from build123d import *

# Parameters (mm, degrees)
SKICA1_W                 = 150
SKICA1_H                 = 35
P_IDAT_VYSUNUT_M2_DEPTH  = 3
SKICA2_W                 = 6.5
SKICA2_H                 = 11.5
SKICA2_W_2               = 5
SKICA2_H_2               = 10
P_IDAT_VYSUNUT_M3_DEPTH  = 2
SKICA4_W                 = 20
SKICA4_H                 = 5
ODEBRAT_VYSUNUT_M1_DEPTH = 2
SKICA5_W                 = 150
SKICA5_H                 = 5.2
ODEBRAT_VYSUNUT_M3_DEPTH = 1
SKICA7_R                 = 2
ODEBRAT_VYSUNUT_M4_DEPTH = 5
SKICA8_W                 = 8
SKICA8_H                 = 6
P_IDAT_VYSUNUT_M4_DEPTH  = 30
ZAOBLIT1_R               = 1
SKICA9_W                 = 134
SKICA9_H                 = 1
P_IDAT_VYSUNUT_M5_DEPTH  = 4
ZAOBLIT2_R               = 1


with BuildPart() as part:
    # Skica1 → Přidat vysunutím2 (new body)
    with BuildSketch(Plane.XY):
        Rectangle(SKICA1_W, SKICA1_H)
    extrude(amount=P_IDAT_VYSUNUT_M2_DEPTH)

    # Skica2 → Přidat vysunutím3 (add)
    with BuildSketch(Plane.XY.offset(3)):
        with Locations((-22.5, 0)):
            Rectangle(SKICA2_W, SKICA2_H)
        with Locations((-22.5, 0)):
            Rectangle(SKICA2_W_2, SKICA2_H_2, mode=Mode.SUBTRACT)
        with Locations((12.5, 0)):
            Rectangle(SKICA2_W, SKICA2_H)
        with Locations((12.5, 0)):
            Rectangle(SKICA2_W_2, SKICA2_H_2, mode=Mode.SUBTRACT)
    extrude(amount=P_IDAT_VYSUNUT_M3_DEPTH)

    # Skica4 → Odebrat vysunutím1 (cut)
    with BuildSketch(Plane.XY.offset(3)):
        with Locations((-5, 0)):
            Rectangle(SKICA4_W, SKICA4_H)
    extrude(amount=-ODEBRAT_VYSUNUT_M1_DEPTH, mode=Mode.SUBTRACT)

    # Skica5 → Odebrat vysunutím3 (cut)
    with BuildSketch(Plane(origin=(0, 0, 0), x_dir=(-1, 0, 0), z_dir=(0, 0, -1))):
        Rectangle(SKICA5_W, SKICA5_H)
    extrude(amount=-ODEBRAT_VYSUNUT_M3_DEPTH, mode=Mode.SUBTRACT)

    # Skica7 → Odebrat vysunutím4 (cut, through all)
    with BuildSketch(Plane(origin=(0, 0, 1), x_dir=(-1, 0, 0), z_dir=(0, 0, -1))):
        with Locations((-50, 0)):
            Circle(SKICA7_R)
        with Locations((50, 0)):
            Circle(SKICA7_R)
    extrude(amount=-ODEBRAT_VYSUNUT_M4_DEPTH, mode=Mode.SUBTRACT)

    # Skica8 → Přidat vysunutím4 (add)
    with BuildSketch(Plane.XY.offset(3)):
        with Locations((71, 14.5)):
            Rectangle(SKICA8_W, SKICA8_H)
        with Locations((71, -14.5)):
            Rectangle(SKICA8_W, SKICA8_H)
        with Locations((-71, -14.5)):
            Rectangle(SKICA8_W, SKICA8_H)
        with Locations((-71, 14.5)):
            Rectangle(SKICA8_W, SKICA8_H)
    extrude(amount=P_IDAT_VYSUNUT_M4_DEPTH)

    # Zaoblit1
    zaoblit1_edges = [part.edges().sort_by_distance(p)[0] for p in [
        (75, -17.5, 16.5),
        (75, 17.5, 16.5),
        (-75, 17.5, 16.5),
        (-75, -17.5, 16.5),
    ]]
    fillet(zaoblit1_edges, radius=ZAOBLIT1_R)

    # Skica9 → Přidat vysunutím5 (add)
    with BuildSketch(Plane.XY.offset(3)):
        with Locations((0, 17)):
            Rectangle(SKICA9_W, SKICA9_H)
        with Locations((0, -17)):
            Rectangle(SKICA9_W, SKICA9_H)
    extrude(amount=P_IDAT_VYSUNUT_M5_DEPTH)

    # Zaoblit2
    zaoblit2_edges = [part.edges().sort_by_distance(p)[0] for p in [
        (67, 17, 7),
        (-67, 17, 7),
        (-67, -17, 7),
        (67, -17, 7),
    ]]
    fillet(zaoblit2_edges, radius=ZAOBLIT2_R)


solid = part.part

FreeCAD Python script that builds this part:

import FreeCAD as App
import Part
import Sketcher

V = App.Vector
Q = App.Units.Quantity


def edges_at(feature, points):
    """Names of the edges that pass closest to the given points."""
    edges = feature.Shape.Edges
    near = lambda p: min(range(len(edges)), key=lambda i: edges[i].distToShape(Part.Vertex(*p))[0])
    return sorted({f"Edge{near(p) + 1}" for p in points})

doc = App.newDocument("Part")
params = doc.addObject("Spreadsheet::Sheet", "Params")
for row, (alias, value) in enumerate([
    ("sketch1_width", "150 mm"),
    ("sketch1_height", "35 mm"),
    ("pad1_length", "3 mm"),
    ("sketch2_width", "5 mm"),
    ("sketch2_height", "10 mm"),
    ("sketch2_width2", "6.5 mm"),
    ("sketch2_height2", "11.5 mm"),
    ("pad2_length", "2 mm"),
    ("sketch3_width", "20 mm"),
    ("sketch3_height", "5 mm"),
    ("pocket1_length", "2 mm"),
    ("sketch4_width", "150 mm"),
    ("sketch4_height", "5.2 mm"),
    ("pocket2_length", "1 mm"),
    ("sketch5_diameter", "4 mm"),
    ("sketch6_width", "8 mm"),
    ("sketch6_height", "6 mm"),
    ("pad3_length", "30 mm"),
    ("fillet_radius", "1 mm"),
    ("sketch7_width", "134 mm"),
    ("sketch7_height", "1 mm"),
    ("pad4_length", "4 mm"),
    ("fillet2_radius", "1 mm"),
], start=1):
    params.set(f"A{row}", alias)
    params.set(f"B{row}", "=" + value)
    params.setAlias(f"B{row}", alias)

body = doc.addObject("PartDesign::Body", "Body")

# Sketch on XY plane
sketch1 = body.newObject("Sketcher::SketchObject", "Sketch")
sketch1.AttachmentSupport = (doc.getObject("XY_Plane"), [""])
sketch1.MapMode = "FlatFace"
sketch1.addGeometry([
    Part.LineSegment(V(-75, 17.5, 0), V(-75, -17.5, 0)),
    Part.LineSegment(V(-75, -17.5, 0), V(75, -17.5, 0)),
    Part.LineSegment(V(75, -17.5, 0), V(75, 17.5, 0)),
    Part.LineSegment(V(75, 17.5, 0), V(-75, 17.5, 0)),
], False)
sketch1.addConstraint([
    Sketcher.Constraint("Coincident", 0, 2, 1, 1),
    Sketcher.Constraint("Coincident", 1, 2, 2, 1),
    Sketcher.Constraint("Coincident", 2, 2, 3, 1),
    Sketcher.Constraint("Coincident", 3, 2, 0, 1),
    Sketcher.Constraint("Vertical", 0),
    Sketcher.Constraint("Horizontal", 1),
    Sketcher.Constraint("Vertical", 2),
    Sketcher.Constraint("Horizontal", 3),
    Sketcher.Constraint("Symmetric", 0, 2, 2, 2, -1, 1),
    Sketcher.Constraint("DistanceX", 1, 1, 1, 2, Q("150 mm")),
    Sketcher.Constraint("DistanceY", 0, 2, 0, 1, Q("35 mm")),
])
sketch1.setExpression("Constraints[9]", "Params.sketch1_width")
sketch1.setExpression("Constraints[10]", "Params.sketch1_height")
pad1 = body.newObject("PartDesign::Pad", "Pad")
pad1.Profile = sketch1
pad1.setExpression("Length", "Params.pad1_length")

# Sketch on XY plane
sketch2 = body.newObject("Sketcher::SketchObject", "Sketch001")
sketch2.AttachmentSupport = (doc.getObject("XY_Plane"), [""])
sketch2.MapMode = "FlatFace"
sketch2.AttachmentOffset = App.Placement(V(0, 0, 3), App.Rotation())
sketch2.addGeometry([
    Part.LineSegment(V(-25.75, 5.75, 0), V(-25.75, -5.75, 0)),  # 0
    Part.LineSegment(V(-25.75, -5.75, 0), V(-19.25, -5.75, 0)),  # 1
    Part.LineSegment(V(-19.25, -5.75, 0), V(-19.25, 5.75, 0)),  # 2
    Part.LineSegment(V(-19.25, 5.75, 0), V(-25.75, 5.75, 0)),  # 3
    Part.LineSegment(V(-20, -5, 0), V(-25, -5, 0)),  # 4
    Part.LineSegment(V(-25, -5, 0), V(-25, 5, 0)),  # 5
    Part.LineSegment(V(-25, 5, 0), V(-20, 5, 0)),  # 6
    Part.LineSegment(V(-20, 5, 0), V(-20, -5, 0)),  # 7
    Part.LineSegment(V(9.25, 5.75, 0), V(9.25, -5.75, 0)),  # 8
    Part.LineSegment(V(9.25, -5.75, 0), V(15.75, -5.75, 0)),  # 9
    Part.LineSegment(V(15.75, -5.75, 0), V(15.75, 5.75, 0)),  # 10
    Part.LineSegment(V(15.75, 5.75, 0), V(9.25, 5.75, 0)),  # 11
    Part.LineSegment(V(15, -5, 0), V(10, -5, 0)),  # 12
    Part.LineSegment(V(10, -5, 0), V(10, 5, 0)),  # 13
    Part.LineSegment(V(10, 5, 0), V(15, 5, 0)),  # 14
    Part.LineSegment(V(15, 5, 0), V(15, -5, 0)),  # 15
], False)
sketch2.addConstraint([
    Sketcher.Constraint("Coincident", 0, 2, 1, 1),
    Sketcher.Constraint("Coincident", 1, 2, 2, 1),
    Sketcher.Constraint("Coincident", 2, 2, 3, 1),
    Sketcher.Constraint("Coincident", 3, 2, 0, 1),
    Sketcher.Constraint("Coincident", 4, 2, 5, 1),
    Sketcher.Constraint("Coincident", 5, 2, 6, 1),
    Sketcher.Constraint("Coincident", 6, 2, 7, 1),
    Sketcher.Constraint("Coincident", 7, 2, 4, 1),
    Sketcher.Constraint("Coincident", 8, 2, 9, 1),
    Sketcher.Constraint("Coincident", 9, 2, 10, 1),
    Sketcher.Constraint("Coincident", 10, 2, 11, 1),
    Sketcher.Constraint("Coincident", 11, 2, 8, 1),
    Sketcher.Constraint("Coincident", 12, 2, 13, 1),
    Sketcher.Constraint("Coincident", 13, 2, 14, 1),
    Sketcher.Constraint("Coincident", 14, 2, 15, 1),
    Sketcher.Constraint("Coincident", 15, 2, 12, 1),
    Sketcher.Constraint("Vertical", 0),
    Sketcher.Constraint("Horizontal", 1),
    Sketcher.Constraint("Vertical", 2),
    Sketcher.Constraint("Horizontal", 3),
    Sketcher.Constraint("Horizontal", 4),
    Sketcher.Constraint("Vertical", 5),
    Sketcher.Constraint("Horizontal", 6),
    Sketcher.Constraint("Vertical", 7),
    Sketcher.Constraint("Vertical", 8),
    Sketcher.Constraint("Horizontal", 9),
    Sketcher.Constraint("Vertical", 10),
    Sketcher.Constraint("Horizontal", 11),
    Sketcher.Constraint("Horizontal", 12),
    Sketcher.Constraint("Vertical", 13),
    Sketcher.Constraint("Horizontal", 14),
    Sketcher.Constraint("Vertical", 15),
    Sketcher.Constraint("Horizontal", 1, 2, 8, 2),
    Sketcher.Constraint("Horizontal", 3, 2, 10, 2),
    Sketcher.Constraint("Horizontal", 7, 2, 12, 2),
    Sketcher.Constraint("Horizontal", 6, 2, 13, 2),
    Sketcher.Constraint("Equal", 3, 9),
    Sketcher.Constraint("Equal", 6, 12),
    Sketcher.Constraint("DistanceX", 4, 2, 4, 1, Q("5 mm")),
    Sketcher.Constraint("DistanceY", 5, 1, 5, 2, Q("10 mm")),
    Sketcher.Constraint("DistanceX", 1, 1, 1, 2, Q("6.5 mm")),
    Sketcher.Constraint("DistanceY", 0, 2, 0, 1, Q("11.5 mm")),
    Sketcher.Constraint("DistanceX", 4, 2, -1, 1, Q("25 mm")),
    Sketcher.Constraint("DistanceY", 4, 2, -1, 1, Q("5 mm")),
    Sketcher.Constraint("DistanceX", -1, 1, 12, 2, Q("10 mm")),
    Sketcher.Constraint("DistanceX", 1, 2, 9, 2, Q("35 mm")),
    Sketcher.Constraint("DistanceX", 0, 2, -1, 1, Q("25.75 mm")),
    Sketcher.Constraint("DistanceY", 0, 2, -1, 1, Q("5.75 mm")),
])
sketch2.setExpression("Constraints[38]", "Params.sketch2_width")
sketch2.setExpression("Constraints[39]", "Params.sketch2_height")
sketch2.setExpression("Constraints[40]", "Params.sketch2_width2")
sketch2.setExpression("Constraints[41]", "Params.sketch2_height2")
pad2 = body.newObject("PartDesign::Pad", "Pad001")
pad2.Profile = sketch2
pad2.setExpression("Length", "Params.pad2_length")

# Sketch on XY plane
sketch3 = body.newObject("Sketcher::SketchObject", "Sketch002")
sketch3.AttachmentSupport = (doc.getObject("XY_Plane"), [""])
sketch3.MapMode = "FlatFace"
sketch3.AttachmentOffset = App.Placement(V(0, 0, 3), App.Rotation())
sketch3.addGeometry([
    Part.LineSegment(V(-15, 2.5, 0), V(-15, -2.5, 0)),
    Part.LineSegment(V(-15, -2.5, 0), V(5, -2.5, 0)),
    Part.LineSegment(V(5, -2.5, 0), V(5, 2.5, 0)),
    Part.LineSegment(V(5, 2.5, 0), V(-15, 2.5, 0)),
], False)
sketch3.addConstraint([
    Sketcher.Constraint("Coincident", 0, 2, 1, 1),
    Sketcher.Constraint("Coincident", 1, 2, 2, 1),
    Sketcher.Constraint("Coincident", 2, 2, 3, 1),
    Sketcher.Constraint("Coincident", 3, 2, 0, 1),
    Sketcher.Constraint("Vertical", 0),
    Sketcher.Constraint("Horizontal", 1),
    Sketcher.Constraint("Vertical", 2),
    Sketcher.Constraint("Horizontal", 3),
    Sketcher.Constraint("DistanceX", 1, 1, 1, 2, Q("20 mm")),
    Sketcher.Constraint("DistanceY", 0, 2, 0, 1, Q("5 mm")),
    Sketcher.Constraint("DistanceX", 0, 2, -1, 1, Q("15 mm")),
    Sketcher.Constraint("DistanceY", 0, 2, -1, 1, Q("2.5 mm")),
])
sketch3.setExpression("Constraints[8]", "Params.sketch3_width")
sketch3.setExpression("Constraints[9]", "Params.sketch3_height")
pocket1 = body.newObject("PartDesign::Pocket", "Pocket")
pocket1.Profile = sketch3
pocket1.setExpression("Length", "Params.pocket1_length")

# Sketch on XY plane
sketch4 = body.newObject("Sketcher::SketchObject", "Sketch003")
sketch4.AttachmentSupport = (doc.getObject("XY_Plane"), [""])
sketch4.MapMode = "FlatFace"
sketch4.addGeometry([
    Part.LineSegment(V(75, 2.6, 0), V(75, -2.6, 0)),
    Part.LineSegment(V(75, -2.6, 0), V(-75, -2.6, 0)),
    Part.LineSegment(V(-75, -2.6, 0), V(-75, 2.6, 0)),
    Part.LineSegment(V(-75, 2.6, 0), V(75, 2.6, 0)),
], False)
sketch4.addConstraint([
    Sketcher.Constraint("Coincident", 0, 2, 1, 1),
    Sketcher.Constraint("Coincident", 1, 2, 2, 1),
    Sketcher.Constraint("Coincident", 2, 2, 3, 1),
    Sketcher.Constraint("Coincident", 3, 2, 0, 1),
    Sketcher.Constraint("Vertical", 0),
    Sketcher.Constraint("Horizontal", 1),
    Sketcher.Constraint("Vertical", 2),
    Sketcher.Constraint("Horizontal", 3),
    Sketcher.Constraint("Symmetric", 0, 2, 2, 2, -1, 1),
    Sketcher.Constraint("DistanceX", 1, 2, 1, 1, Q("150 mm")),
    Sketcher.Constraint("DistanceY", 0, 2, 0, 1, Q("5.2 mm")),
])
sketch4.setExpression("Constraints[9]", "Params.sketch4_width")
sketch4.setExpression("Constraints[10]", "Params.sketch4_height")
pocket2 = body.newObject("PartDesign::Pocket", "Pocket001")
pocket2.Profile = sketch4
pocket2.setExpression("Length", "Params.pocket2_length")
pocket2.Reversed = True

# Sketch on XY plane
sketch5 = body.newObject("Sketcher::SketchObject", "Sketch004")
sketch5.AttachmentSupport = (doc.getObject("XY_Plane"), [""])
sketch5.MapMode = "FlatFace"
sketch5.AttachmentOffset = App.Placement(V(0, 0, 1), App.Rotation())
sketch5.addGeometry([
    Part.Circle(V(50, 0, 0), V(0, 0, 1), 2),
    Part.Circle(V(-50, 0, 0), V(0, 0, 1), 2),
], False)
sketch5.addConstraint([
    Sketcher.Constraint("Equal", 0, 1),
    Sketcher.Constraint("Symmetric", 0, 3, 1, 3, -1, 1),
    Sketcher.Constraint("PointOnObject", 0, 3, -1),
    Sketcher.Constraint("Diameter", 0, Q("4 mm")),
    Sketcher.Constraint("DistanceX", -1, 1, 0, 3, Q("50 mm")),
])
sketch5.setExpression("Constraints[3]", "Params.sketch5_diameter")
pocket3 = body.newObject("PartDesign::Pocket", "Pocket002")
pocket3.Profile = sketch5
pocket3.Type = "ThroughAll"
pocket3.Reversed = True

# Sketch on XY plane
sketch6 = body.newObject("Sketcher::SketchObject", "Sketch005")
sketch6.AttachmentSupport = (doc.getObject("XY_Plane"), [""])
sketch6.MapMode = "FlatFace"
sketch6.AttachmentOffset = App.Placement(V(0, 0, 3), App.Rotation())
sketch6.addGeometry([
    Part.LineSegment(V(67, 17.5, 0), V(67, 11.5, 0)),  # 0
    Part.LineSegment(V(67, 11.5, 0), V(75, 11.5, 0)),  # 1
    Part.LineSegment(V(75, 11.5, 0), V(75, 17.5, 0)),  # 2
    Part.LineSegment(V(75, 17.5, 0), V(67, 17.5, 0)),  # 3
    Part.LineSegment(V(67, -11.5, 0), V(67, -17.5, 0)),  # 4
    Part.LineSegment(V(67, -17.5, 0), V(75, -17.5, 0)),  # 5
    Part.LineSegment(V(75, -17.5, 0), V(75, -11.5, 0)),  # 6
    Part.LineSegment(V(75, -11.5, 0), V(67, -11.5, 0)),  # 7
    Part.LineSegment(V(-75, -11.5, 0), V(-75, -17.5, 0)),  # 8
    Part.LineSegment(V(-75, -17.5, 0), V(-67, -17.5, 0)),  # 9
    Part.LineSegment(V(-67, -17.5, 0), V(-67, -11.5, 0)),  # 10
    Part.LineSegment(V(-67, -11.5, 0), V(-75, -11.5, 0)),  # 11
    Part.LineSegment(V(-75, 17.5, 0), V(-75, 11.5, 0)),  # 12
    Part.LineSegment(V(-75, 11.5, 0), V(-67, 11.5, 0)),  # 13
    Part.LineSegment(V(-67, 11.5, 0), V(-67, 17.5, 0)),  # 14
    Part.LineSegment(V(-67, 17.5, 0), V(-75, 17.5, 0)),  # 15
], False)
sketch6.addConstraint([
    Sketcher.Constraint("Coincident", 0, 2, 1, 1),
    Sketcher.Constraint("Coincident", 1, 2, 2, 1),
    Sketcher.Constraint("Coincident", 2, 2, 3, 1),
    Sketcher.Constraint("Coincident", 3, 2, 0, 1),
    Sketcher.Constraint("Coincident", 4, 2, 5, 1),
    Sketcher.Constraint("Coincident", 5, 2, 6, 1),
    Sketcher.Constraint("Coincident", 6, 2, 7, 1),
    Sketcher.Constraint("Coincident", 7, 2, 4, 1),
    Sketcher.Constraint("Coincident", 8, 2, 9, 1),
    Sketcher.Constraint("Coincident", 9, 2, 10, 1),
    Sketcher.Constraint("Coincident", 10, 2, 11, 1),
    Sketcher.Constraint("Coincident", 11, 2, 8, 1),
    Sketcher.Constraint("Coincident", 12, 2, 13, 1),
    Sketcher.Constraint("Coincident", 13, 2, 14, 1),
    Sketcher.Constraint("Coincident", 14, 2, 15, 1),
    Sketcher.Constraint("Coincident", 15, 2, 12, 1),
    Sketcher.Constraint("Vertical", 0),
    Sketcher.Constraint("Horizontal", 1),
    Sketcher.Constraint("Vertical", 2),
    Sketcher.Constraint("Horizontal", 3),
    Sketcher.Constraint("Vertical", 4),
    Sketcher.Constraint("Horizontal", 5),
    Sketcher.Constraint("Vertical", 6),
    Sketcher.Constraint("Horizontal", 7),
    Sketcher.Constraint("Vertical", 8),
    Sketcher.Constraint("Horizontal", 9),
    Sketcher.Constraint("Vertical", 10),
    Sketcher.Constraint("Horizontal", 11),
    Sketcher.Constraint("Vertical", 12),
    Sketcher.Constraint("Horizontal", 13),
    Sketcher.Constraint("Vertical", 14),
    Sketcher.Constraint("Horizontal", 15),
    Sketcher.Constraint("Symmetric", 2, 2, 8, 2, -1, 1),
    Sketcher.Constraint("Symmetric", 0, 2, 10, 2, -1, 1),
    Sketcher.Constraint("Symmetric", 6, 2, 12, 2, -1, 1),
    Sketcher.Constraint("Symmetric", 4, 2, 14, 2, -1, 1),
    Sketcher.Constraint("Symmetric", 5, 2, 8, 2, -2),
    Sketcher.Constraint("Symmetric", 7, 2, 10, 2, -2),
    Sketcher.Constraint("DistanceX", 1, 1, 1, 2, Q("8 mm")),
    Sketcher.Constraint("DistanceY", 0, 2, 0, 1, Q("6 mm")),
    Sketcher.Constraint("DistanceX", -1, 1, 0, 2, Q("67 mm")),
    Sketcher.Constraint("DistanceY", 4, 2, 0, 2, Q("29 mm")),
])
sketch6.setExpression("Constraints[38]", "Params.sketch6_width")
sketch6.setExpression("Constraints[39]", "Params.sketch6_height")
pad3 = body.newObject("PartDesign::Pad", "Pad002")
pad3.Profile = sketch6
pad3.setExpression("Length", "Params.pad3_length")
doc.recompute()

fillet = body.newObject("PartDesign::Fillet", "Fillet")
fillet.Base = (pad3, edges_at(pad3, [
    (75, -17.5, 16.5),
    (75, 17.5, 16.5),
    (-75, 17.5, 16.5),
    (-75, -17.5, 16.5),
]))
fillet.setExpression("Radius", "Params.fillet_radius")

# Sketch on XY plane
sketch7 = body.newObject("Sketcher::SketchObject", "Sketch006")
sketch7.AttachmentSupport = (doc.getObject("XY_Plane"), [""])
sketch7.MapMode = "FlatFace"
sketch7.AttachmentOffset = App.Placement(V(0, 0, 3), App.Rotation())
sketch7.addGeometry([
    Part.LineSegment(V(-67, 17.5, 0), V(-67, 16.5, 0)),  # 0
    Part.LineSegment(V(-67, 16.5, 0), V(67, 16.5, 0)),  # 1
    Part.LineSegment(V(67, 16.5, 0), V(67, 17.5, 0)),  # 2
    Part.LineSegment(V(67, 17.5, 0), V(-67, 17.5, 0)),  # 3
    Part.LineSegment(V(-67, -16.5, 0), V(-67, -17.5, 0)),  # 4
    Part.LineSegment(V(-67, -17.5, 0), V(67, -17.5, 0)),  # 5
    Part.LineSegment(V(67, -17.5, 0), V(67, -16.5, 0)),  # 6
    Part.LineSegment(V(67, -16.5, 0), V(-67, -16.5, 0)),  # 7
], False)
sketch7.addConstraint([
    Sketcher.Constraint("Coincident", 0, 2, 1, 1),
    Sketcher.Constraint("Coincident", 1, 2, 2, 1),
    Sketcher.Constraint("Coincident", 2, 2, 3, 1),
    Sketcher.Constraint("Coincident", 3, 2, 0, 1),
    Sketcher.Constraint("Coincident", 4, 2, 5, 1),
    Sketcher.Constraint("Coincident", 5, 2, 6, 1),
    Sketcher.Constraint("Coincident", 6, 2, 7, 1),
    Sketcher.Constraint("Coincident", 7, 2, 4, 1),
    Sketcher.Constraint("Vertical", 0),
    Sketcher.Constraint("Horizontal", 1),
    Sketcher.Constraint("Vertical", 2),
    Sketcher.Constraint("Horizontal", 3),
    Sketcher.Constraint("Vertical", 4),
    Sketcher.Constraint("Horizontal", 5),
    Sketcher.Constraint("Vertical", 6),
    Sketcher.Constraint("Horizontal", 7),
    Sketcher.Constraint("Symmetric", 2, 2, 4, 2, -1, 1),
    Sketcher.Constraint("Symmetric", 0, 2, 6, 2, -1, 1),
    Sketcher.Constraint("Vertical", 3, 2, 4, 2),
    Sketcher.Constraint("DistanceX", 1, 1, 1, 2, Q("134 mm")),
    Sketcher.Constraint("DistanceY", 0, 2, 0, 1, Q("1 mm")),
    Sketcher.Constraint("DistanceY", 4, 2, 0, 2, Q("34 mm")),
])
sketch7.setExpression("Constraints[19]", "Params.sketch7_width")
sketch7.setExpression("Constraints[20]", "Params.sketch7_height")
pad4 = body.newObject("PartDesign::Pad", "Pad003")
pad4.Profile = sketch7
pad4.setExpression("Length", "Params.pad4_length")
doc.recompute()

fillet2 = body.newObject("PartDesign::Fillet", "Fillet001")
fillet2.Base = (pad4, edges_at(pad4, [
    (67, 17, 7),
    (-67, 17, 7),
    (-67, -17, 7),
    (67, -17, 7),
]))
fillet2.setExpression("Radius", "Params.fillet2_radius")

doc.recompute()
